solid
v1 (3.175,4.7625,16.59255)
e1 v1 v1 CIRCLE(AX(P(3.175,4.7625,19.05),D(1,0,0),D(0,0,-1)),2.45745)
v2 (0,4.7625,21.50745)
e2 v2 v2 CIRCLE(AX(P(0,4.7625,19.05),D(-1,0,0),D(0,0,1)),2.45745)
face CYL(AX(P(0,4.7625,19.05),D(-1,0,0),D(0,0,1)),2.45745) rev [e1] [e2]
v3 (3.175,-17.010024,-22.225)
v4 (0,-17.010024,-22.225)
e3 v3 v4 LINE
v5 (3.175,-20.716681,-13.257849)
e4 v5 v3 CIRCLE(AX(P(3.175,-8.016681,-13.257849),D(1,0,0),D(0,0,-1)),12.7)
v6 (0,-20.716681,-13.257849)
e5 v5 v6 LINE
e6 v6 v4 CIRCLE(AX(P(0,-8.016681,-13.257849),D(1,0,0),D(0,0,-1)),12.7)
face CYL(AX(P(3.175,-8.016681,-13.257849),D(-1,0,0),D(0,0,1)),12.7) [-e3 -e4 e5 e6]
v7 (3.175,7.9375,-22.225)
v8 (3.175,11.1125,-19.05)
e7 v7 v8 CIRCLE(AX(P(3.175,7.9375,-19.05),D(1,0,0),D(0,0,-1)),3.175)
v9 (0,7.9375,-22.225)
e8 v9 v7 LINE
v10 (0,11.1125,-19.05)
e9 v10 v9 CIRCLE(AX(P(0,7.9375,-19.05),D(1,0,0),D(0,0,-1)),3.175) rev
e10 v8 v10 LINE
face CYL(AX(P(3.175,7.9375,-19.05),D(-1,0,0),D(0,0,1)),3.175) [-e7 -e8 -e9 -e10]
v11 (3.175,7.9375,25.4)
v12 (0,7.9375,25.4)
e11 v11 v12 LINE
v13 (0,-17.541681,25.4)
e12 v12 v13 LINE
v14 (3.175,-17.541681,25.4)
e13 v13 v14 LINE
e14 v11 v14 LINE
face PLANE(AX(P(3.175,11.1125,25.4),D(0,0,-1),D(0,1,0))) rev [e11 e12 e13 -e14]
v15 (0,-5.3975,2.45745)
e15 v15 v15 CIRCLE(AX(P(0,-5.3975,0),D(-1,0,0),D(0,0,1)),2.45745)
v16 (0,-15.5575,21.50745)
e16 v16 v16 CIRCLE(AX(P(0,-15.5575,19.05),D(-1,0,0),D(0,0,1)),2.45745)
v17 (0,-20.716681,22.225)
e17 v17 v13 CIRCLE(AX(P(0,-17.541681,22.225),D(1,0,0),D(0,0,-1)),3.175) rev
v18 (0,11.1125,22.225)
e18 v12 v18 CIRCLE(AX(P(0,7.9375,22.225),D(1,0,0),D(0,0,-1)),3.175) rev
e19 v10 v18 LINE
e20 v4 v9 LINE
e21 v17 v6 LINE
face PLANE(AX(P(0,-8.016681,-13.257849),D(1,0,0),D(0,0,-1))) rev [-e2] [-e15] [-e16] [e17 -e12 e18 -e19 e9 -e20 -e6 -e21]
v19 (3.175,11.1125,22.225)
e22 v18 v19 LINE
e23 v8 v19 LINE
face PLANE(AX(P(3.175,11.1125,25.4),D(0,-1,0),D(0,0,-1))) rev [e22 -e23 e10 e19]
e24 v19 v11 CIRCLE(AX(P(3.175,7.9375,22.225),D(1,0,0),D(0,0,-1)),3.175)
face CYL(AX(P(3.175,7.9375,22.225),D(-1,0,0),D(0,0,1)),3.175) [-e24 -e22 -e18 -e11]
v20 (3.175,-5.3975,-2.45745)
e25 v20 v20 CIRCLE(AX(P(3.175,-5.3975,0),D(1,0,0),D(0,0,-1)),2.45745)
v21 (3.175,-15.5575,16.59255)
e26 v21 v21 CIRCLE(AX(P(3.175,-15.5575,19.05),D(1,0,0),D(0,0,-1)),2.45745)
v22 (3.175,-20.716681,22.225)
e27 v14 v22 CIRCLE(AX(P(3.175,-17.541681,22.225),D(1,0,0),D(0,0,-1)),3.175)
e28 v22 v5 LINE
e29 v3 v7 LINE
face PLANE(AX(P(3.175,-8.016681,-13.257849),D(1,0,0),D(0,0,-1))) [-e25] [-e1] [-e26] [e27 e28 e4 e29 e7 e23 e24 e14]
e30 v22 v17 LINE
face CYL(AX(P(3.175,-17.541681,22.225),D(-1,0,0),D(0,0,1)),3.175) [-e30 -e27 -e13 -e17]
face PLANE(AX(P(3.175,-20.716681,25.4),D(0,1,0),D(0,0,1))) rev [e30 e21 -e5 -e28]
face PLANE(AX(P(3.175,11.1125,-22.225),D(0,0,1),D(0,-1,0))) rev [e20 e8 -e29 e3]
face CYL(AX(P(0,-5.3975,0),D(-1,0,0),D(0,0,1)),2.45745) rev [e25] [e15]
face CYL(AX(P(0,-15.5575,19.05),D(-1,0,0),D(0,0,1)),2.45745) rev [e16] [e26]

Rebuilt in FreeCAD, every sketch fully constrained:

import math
import FreeCAD as App
import Part
import Sketcher

V = App.Vector
Q = App.Units.Quantity


def edges_at(feature, points):
    """Names of the edges that pass closest to the given points."""
    edges = feature.Shape.Edges
    near = lambda p: min(range(len(edges)), key=lambda i: edges[i].distToShape(Part.Vertex(*p))[0])
    return sorted({f"Edge{near(p) + 1}" for p in points})

doc = App.newDocument("Part")
body = doc.addObject("PartDesign::Body", "Body")

# Sketch on YZ plane
sketch1 = doc.addObject("Sketcher::SketchObject", "Sketch")
body.addObject(sketch1)
sketch1.AttachmentSupport = (doc.YZ_Plane, [""])
sketch1.MapMode = "FlatFace"
sketch1.addGeometry([
    Part.LineSegment(V(11.1, -22.2, 0), V(11.1, 25.4, 0)),  # 0
    Part.LineSegment(V(11.1, 25.4, 0), V(-20.7, 25.4, 0)),  # 1
    Part.LineSegment(V(-20.7, 25.4, 0), V(-20.7, -13.3, 0)),  # 2
    Part.ArcOfCircle(Part.Circle(V(-8, -13.3, 0), V(0, 0, 1), 12.7), math.radians(-180), math.radians(-150)),  # 3
    Part.ArcOfCircle(Part.Circle(V(-8, -13.3, 0), V(0, 0, 1), 12.7), math.radians(-150.49), math.radians(-144.23)),  # 4
    Part.ArcOfCircle(Part.Circle(V(-8, -13.3, 0), V(0, 0, 1), 12.7), math.radians(-144.23), math.radians(-135.08)),  # 5
    Part.LineSegment(V(-17, -22.2, 0), V(11.1, -22.2, 0)),  # 6
], False)
sketch1.addConstraint([
    Sketcher.Constraint("Coincident", 0, 2, 1, 1),
    Sketcher.Constraint("Coincident", 1, 2, 2, 1),
    Sketcher.Constraint("Tangent", 2, 2, 3, 1),
    Sketcher.Constraint("Tangent", 3, 2, 4, 1),
    Sketcher.Constraint("Tangent", 4, 2, 5, 1),
    Sketcher.Constraint("Coincident", 5, 2, 6, 1),
    Sketcher.Constraint("Coincident", 6, 2, 0, 1),
    Sketcher.Constraint("Vertical", 0),
    Sketcher.Constraint("Horizontal", 1),
    Sketcher.Constraint("Vertical", 2),
    Sketcher.Constraint("Horizontal", 6),
    Sketcher.Constraint("Coincident", 5, 3, 3, 3),
    Sketcher.Constraint("Radius", 3, Q("0.5 in")),
    Sketcher.Constraint("DistanceY", -1, 1, 0, 2, Q("1 in")),
    Sketcher.Constraint("DistanceY", 0, 1, 0, 2, Q("1.875 in")),
    Sketcher.Constraint("DistanceX", -1, 1, 0, 2, Q("0.4375 in")),
    Sketcher.Constraint("DistanceX", 4, 2, -1, 1, Q("0.7213001 in")),
    Sketcher.Constraint("DistanceX", 1, 2, 1, 1, 31.829181),
    Sketcher.Constraint("DistanceY", 2, 2, 2, 1, 38.657849),
    Sketcher.Constraint("DistanceX", 3, 2, -1, 1, 19.068808),
])
pad1 = doc.addObject("PartDesign::Pad", "Pad")
body.addObject(pad1)
pad1.Profile = sketch1
pad1.Length = Q("0.125 in")

# Sketch on YZ plane
sketch2 = doc.addObject("Sketcher::SketchObject", "Sketch001")
body.addObject(sketch2)
sketch2.AttachmentSupport = (doc.YZ_Plane, [""])
sketch2.MapMode = "FlatFace"
sketch2.addGeometry([
    Part.Circle(V(4.8, 19.1, 0), V(0, 0, 1), 2.5),
    Part.Circle(V(-15.6, 19.1, 0), V(0, 0, 1), 2.5),
    Part.Circle(V(-5.4, 0, 0), V(0, 0, 1), 2.5),
], False)
sketch2.addConstraint([
    Sketcher.Constraint("Equal", 0, 1),
    Sketcher.Constraint("Equal", 1, 2),
    Sketcher.Constraint("PointOnObject", 2, 3, -1),
    Sketcher.Constraint("Horizontal", 0, 3, 1, 3),
    Sketcher.Constraint("Diameter", 0, Q("0.1935 in")),
    Sketcher.Constraint("DistanceX", 1, 3, 0, 3, Q("0.8 in")),
    Sketcher.Constraint("DistanceX", 2, 3, 0, 3, Q("0.4 in")),
    Sketcher.Constraint("DistanceY", -1, 1, 0, 3, Q("0.75 in")),
    Sketcher.Constraint("DistanceX", -1, 1, 0, 3, Q("0.1875 in")),
])
doc.recompute()
hole = doc.addObject("PartDesign::Hole", "Hole")
body.addObject(hole)
hole.Profile = sketch2
hole.ThreadType = "None"
hole.Diameter = Q("0.1935 in")
hole.DepthType = "Dimension"
hole.Depth = 9.699415
hole.DrillPoint = "Angled"
hole.DrillPointAngle = 118
hole.Reversed = True
doc.recompute()

fillet = doc.addObject("PartDesign::Fillet", "Fillet")
body.addObject(fillet)
fillet.Base = (hole, edges_at(hole, [(1.587, 11.113, 25.4), (1.587, 11.113, -22.225), (1.587, -20.717, 25.4)]))
fillet.Radius = Q("0.125 in")

doc.recompute()
